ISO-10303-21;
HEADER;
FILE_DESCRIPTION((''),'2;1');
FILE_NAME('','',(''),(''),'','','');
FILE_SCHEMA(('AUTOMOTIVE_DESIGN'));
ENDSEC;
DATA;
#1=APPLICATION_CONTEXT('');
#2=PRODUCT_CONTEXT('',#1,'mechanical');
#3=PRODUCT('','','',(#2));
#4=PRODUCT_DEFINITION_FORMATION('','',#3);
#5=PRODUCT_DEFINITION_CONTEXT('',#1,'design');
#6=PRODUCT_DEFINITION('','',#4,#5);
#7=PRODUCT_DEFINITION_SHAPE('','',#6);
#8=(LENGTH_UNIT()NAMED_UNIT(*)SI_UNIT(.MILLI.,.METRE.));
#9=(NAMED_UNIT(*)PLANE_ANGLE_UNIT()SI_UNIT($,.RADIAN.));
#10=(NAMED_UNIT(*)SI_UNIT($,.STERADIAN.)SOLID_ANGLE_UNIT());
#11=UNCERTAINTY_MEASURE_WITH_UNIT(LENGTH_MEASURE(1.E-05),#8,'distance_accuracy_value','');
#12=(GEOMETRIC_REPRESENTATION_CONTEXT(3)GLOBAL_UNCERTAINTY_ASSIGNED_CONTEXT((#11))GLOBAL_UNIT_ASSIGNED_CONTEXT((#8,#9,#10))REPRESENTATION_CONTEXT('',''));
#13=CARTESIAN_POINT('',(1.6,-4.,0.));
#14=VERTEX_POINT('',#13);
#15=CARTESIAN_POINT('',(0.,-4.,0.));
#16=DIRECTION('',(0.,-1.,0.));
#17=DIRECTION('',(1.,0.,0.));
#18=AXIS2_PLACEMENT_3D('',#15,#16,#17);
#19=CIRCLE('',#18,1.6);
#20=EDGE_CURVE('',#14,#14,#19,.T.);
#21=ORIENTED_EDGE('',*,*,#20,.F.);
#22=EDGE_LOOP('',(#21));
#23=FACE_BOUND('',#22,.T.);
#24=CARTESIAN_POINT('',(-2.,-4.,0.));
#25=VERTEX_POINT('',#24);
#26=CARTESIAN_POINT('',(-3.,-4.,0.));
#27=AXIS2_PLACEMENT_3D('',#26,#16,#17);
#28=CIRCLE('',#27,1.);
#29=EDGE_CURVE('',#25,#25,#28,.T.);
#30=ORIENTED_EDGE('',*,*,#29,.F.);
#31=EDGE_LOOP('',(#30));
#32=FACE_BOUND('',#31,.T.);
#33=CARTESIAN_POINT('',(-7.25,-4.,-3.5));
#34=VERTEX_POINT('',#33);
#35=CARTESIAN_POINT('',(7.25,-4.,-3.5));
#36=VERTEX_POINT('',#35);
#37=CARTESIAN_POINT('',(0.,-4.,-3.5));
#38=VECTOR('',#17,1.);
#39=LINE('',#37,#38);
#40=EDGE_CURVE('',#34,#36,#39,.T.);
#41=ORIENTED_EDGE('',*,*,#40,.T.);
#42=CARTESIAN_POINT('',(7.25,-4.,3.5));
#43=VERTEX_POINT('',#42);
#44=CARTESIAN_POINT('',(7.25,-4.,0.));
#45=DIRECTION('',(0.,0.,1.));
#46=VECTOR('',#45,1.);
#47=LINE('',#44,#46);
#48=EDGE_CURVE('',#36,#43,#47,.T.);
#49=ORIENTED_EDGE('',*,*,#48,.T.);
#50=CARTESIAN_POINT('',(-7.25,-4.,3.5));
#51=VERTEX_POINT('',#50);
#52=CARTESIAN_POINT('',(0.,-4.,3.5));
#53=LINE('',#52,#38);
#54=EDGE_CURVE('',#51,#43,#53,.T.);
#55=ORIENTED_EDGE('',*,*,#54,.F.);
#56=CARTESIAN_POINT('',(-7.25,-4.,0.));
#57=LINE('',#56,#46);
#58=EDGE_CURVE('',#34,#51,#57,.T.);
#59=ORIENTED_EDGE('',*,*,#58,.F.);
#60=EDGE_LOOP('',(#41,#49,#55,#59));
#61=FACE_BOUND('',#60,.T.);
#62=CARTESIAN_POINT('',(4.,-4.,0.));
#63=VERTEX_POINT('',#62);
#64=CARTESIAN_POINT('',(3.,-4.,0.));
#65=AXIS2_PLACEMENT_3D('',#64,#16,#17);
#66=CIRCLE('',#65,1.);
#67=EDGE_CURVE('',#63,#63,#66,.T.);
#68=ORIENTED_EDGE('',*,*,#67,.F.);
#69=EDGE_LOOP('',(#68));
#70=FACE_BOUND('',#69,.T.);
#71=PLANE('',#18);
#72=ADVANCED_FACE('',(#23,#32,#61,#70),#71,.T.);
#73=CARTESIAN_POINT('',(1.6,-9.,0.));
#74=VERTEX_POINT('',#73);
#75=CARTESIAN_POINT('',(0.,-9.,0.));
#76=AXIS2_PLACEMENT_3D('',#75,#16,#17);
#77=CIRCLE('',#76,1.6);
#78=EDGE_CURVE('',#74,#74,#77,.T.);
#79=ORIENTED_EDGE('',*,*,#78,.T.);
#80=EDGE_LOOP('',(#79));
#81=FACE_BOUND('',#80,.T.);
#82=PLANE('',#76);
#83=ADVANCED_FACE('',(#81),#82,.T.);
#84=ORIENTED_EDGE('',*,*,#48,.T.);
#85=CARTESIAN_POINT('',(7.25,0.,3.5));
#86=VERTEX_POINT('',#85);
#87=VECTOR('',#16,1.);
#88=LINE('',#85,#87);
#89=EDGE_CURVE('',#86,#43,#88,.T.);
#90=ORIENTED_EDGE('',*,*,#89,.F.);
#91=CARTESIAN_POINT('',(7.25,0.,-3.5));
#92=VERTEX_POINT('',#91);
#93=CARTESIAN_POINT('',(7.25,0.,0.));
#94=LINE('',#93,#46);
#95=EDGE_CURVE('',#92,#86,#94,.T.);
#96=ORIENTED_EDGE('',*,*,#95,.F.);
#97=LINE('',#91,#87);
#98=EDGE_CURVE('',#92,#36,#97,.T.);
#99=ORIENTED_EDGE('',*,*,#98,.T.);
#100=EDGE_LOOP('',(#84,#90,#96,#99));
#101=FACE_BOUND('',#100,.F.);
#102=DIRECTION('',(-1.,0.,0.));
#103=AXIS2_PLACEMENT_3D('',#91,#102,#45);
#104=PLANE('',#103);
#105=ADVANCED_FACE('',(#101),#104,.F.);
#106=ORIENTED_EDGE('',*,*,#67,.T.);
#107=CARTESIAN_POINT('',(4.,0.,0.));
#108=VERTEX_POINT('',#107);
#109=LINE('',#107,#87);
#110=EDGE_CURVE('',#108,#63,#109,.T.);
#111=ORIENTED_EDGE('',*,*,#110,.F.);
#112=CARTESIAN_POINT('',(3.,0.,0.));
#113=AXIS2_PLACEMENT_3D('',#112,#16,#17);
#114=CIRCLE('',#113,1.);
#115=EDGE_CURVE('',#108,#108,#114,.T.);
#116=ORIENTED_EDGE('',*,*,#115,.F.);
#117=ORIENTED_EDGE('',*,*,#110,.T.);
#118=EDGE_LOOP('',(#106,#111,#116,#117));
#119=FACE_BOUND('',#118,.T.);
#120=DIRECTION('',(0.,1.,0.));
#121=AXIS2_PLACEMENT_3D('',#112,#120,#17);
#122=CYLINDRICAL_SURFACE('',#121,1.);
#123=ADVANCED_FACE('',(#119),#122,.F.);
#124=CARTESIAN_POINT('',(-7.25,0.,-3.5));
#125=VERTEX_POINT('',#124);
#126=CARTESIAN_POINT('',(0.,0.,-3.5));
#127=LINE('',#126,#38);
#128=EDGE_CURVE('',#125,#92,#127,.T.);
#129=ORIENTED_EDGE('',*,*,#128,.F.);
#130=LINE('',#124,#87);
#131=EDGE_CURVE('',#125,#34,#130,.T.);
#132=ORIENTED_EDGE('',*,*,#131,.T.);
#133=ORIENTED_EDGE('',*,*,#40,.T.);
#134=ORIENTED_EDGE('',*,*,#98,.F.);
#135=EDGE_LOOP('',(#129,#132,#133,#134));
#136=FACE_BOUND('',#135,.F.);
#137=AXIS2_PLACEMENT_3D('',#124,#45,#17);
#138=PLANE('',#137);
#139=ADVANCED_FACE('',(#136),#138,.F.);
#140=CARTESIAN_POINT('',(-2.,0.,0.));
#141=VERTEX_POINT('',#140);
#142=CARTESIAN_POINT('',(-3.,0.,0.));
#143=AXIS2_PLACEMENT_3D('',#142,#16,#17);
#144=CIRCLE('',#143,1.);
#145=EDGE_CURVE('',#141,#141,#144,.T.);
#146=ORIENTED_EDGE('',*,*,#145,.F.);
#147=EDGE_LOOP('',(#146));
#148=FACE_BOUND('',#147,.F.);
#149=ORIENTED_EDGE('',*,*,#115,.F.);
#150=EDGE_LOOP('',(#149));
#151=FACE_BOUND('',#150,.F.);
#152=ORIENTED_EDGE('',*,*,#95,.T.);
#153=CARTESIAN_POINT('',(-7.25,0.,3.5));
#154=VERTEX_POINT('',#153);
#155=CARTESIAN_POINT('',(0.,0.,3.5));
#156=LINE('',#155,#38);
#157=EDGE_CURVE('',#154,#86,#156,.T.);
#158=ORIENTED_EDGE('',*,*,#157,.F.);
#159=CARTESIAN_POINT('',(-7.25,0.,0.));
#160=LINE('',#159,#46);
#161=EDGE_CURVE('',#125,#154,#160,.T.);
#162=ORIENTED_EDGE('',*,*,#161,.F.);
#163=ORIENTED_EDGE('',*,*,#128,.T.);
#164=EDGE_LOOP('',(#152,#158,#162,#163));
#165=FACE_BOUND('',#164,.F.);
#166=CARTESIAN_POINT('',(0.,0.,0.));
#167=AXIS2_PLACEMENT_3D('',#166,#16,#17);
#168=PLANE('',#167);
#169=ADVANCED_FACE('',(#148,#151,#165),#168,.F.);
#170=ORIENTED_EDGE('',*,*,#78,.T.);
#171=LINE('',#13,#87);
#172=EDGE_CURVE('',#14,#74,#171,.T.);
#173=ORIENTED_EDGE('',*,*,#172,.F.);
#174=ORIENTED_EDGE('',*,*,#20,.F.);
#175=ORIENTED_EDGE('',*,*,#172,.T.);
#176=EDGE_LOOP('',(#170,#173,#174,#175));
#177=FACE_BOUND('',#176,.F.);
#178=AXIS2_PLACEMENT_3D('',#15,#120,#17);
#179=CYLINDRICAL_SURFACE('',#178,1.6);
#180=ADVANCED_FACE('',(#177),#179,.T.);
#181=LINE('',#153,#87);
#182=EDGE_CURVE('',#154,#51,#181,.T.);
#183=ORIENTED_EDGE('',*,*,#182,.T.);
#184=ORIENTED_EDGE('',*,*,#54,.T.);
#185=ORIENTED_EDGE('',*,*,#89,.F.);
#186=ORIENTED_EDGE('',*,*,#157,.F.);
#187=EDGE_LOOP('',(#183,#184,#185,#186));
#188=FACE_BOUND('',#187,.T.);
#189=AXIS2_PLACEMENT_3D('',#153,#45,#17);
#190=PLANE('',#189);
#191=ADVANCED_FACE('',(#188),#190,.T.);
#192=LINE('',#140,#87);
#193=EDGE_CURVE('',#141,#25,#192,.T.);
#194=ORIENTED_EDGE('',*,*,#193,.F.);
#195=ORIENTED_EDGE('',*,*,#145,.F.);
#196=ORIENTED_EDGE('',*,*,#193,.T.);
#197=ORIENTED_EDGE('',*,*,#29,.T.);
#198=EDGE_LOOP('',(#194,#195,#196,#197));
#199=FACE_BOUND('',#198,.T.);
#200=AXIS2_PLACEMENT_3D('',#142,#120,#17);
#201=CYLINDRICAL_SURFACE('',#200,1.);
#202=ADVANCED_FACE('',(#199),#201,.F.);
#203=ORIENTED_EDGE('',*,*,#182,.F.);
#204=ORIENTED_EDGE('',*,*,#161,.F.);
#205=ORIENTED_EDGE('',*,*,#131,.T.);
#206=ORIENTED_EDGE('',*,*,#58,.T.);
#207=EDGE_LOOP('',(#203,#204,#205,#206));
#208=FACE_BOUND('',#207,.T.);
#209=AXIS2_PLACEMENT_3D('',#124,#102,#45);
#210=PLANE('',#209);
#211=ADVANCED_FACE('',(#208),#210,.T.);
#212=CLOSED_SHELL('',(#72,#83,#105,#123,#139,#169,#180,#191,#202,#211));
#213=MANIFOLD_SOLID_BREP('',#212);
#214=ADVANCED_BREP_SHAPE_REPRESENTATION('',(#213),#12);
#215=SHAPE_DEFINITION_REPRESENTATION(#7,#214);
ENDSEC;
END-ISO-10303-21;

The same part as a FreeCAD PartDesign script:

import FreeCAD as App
import Part
import Sketcher
Q = App.Units.Quantity


def add_polygon(sketch, points):
    """Adds a closed chain of lines whose ends are joined by coincident constraints."""
    first, n = sketch.GeometryCount, len(points)
    for a, b in zip(points, points[1:] + points[:1]):
        sketch.addGeometry(Part.LineSegment(App.Vector(*a, 0), App.Vector(*b, 0)), False)
    for i in range(n):
        sketch.addConstraint(Sketcher.Constraint("Coincident", first + i, 2, first + (i + 1) % n, 1))

doc = App.newDocument("Part")
body = doc.addObject("PartDesign::Body", "Body")

sketch1 = body.newObject("Sketcher::SketchObject", "Sketch")
sketch1.AttachmentSupport = (doc.getObject("XZ_Plane"), [""])
sketch1.MapMode = "FlatFace"
add_polygon(sketch1, [(-7.2, 3.5), (-7.2, -3.5), (7.2, -3.5), (7.2, 3.5)])
sketch1.addGeometry(Part.Circle(App.Vector(-3, 0, 0), App.Vector(0, 0, 1), 1), False)
sketch1.addGeometry(Part.Circle(App.Vector(3, 0, 0), App.Vector(0, 0, 1), 1), False)
sketch1.addConstraint([
    Sketcher.Constraint("Vertical", 0),
    Sketcher.Constraint("Horizontal", 1),
    Sketcher.Constraint("Vertical", 2),
    Sketcher.Constraint("Horizontal", 3),
    Sketcher.Constraint("Equal", 4, 5),
    Sketcher.Constraint("Symmetric", 4, 3, 5, 3, -1, 1),
    Sketcher.Constraint("Symmetric", 0, 2, 2, 2, -1, 1),
    Sketcher.Constraint("PointOnObject", 4, 3, -1),
    Sketcher.Constraint("Diameter", 4, Q("2 mm")),
    Sketcher.Constraint("DistanceY", 0, 2, 0, 1, Q("7 mm")),
    Sketcher.Constraint("DistanceX", 1, 1, 1, 2, Q("14.5 mm")),
    Sketcher.Constraint("DistanceX", 4, 3, -1, 1, Q("3 mm")),
])
pad1 = body.newObject("PartDesign::Pad", "Pad")
pad1.Profile = sketch1
pad1.Length = 4

sketch2 = body.newObject("Sketcher::SketchObject", "Sketch001")
sketch2.AttachmentSupport = (doc.getObject("XZ_Plane"), [""])
sketch2.MapMode = "FlatFace"
sketch2.AttachmentOffset = App.Placement(App.Vector(0, 0, 4), App.Rotation())
sketch2.addGeometry(Part.Circle(App.Vector(0, 0, 0), App.Vector(0, 0, 1), 1.6), False)
sketch2.addConstraint([
    Sketcher.Constraint("Coincident", 0, 3, -1, 1),
    Sketcher.Constraint("Diameter", 0, Q("3.2 mm")),
])
pad2 = body.newObject("PartDesign::Pad", "Pad001")
pad2.Profile = sketch2
pad2.Length = 5

doc.recompute()
